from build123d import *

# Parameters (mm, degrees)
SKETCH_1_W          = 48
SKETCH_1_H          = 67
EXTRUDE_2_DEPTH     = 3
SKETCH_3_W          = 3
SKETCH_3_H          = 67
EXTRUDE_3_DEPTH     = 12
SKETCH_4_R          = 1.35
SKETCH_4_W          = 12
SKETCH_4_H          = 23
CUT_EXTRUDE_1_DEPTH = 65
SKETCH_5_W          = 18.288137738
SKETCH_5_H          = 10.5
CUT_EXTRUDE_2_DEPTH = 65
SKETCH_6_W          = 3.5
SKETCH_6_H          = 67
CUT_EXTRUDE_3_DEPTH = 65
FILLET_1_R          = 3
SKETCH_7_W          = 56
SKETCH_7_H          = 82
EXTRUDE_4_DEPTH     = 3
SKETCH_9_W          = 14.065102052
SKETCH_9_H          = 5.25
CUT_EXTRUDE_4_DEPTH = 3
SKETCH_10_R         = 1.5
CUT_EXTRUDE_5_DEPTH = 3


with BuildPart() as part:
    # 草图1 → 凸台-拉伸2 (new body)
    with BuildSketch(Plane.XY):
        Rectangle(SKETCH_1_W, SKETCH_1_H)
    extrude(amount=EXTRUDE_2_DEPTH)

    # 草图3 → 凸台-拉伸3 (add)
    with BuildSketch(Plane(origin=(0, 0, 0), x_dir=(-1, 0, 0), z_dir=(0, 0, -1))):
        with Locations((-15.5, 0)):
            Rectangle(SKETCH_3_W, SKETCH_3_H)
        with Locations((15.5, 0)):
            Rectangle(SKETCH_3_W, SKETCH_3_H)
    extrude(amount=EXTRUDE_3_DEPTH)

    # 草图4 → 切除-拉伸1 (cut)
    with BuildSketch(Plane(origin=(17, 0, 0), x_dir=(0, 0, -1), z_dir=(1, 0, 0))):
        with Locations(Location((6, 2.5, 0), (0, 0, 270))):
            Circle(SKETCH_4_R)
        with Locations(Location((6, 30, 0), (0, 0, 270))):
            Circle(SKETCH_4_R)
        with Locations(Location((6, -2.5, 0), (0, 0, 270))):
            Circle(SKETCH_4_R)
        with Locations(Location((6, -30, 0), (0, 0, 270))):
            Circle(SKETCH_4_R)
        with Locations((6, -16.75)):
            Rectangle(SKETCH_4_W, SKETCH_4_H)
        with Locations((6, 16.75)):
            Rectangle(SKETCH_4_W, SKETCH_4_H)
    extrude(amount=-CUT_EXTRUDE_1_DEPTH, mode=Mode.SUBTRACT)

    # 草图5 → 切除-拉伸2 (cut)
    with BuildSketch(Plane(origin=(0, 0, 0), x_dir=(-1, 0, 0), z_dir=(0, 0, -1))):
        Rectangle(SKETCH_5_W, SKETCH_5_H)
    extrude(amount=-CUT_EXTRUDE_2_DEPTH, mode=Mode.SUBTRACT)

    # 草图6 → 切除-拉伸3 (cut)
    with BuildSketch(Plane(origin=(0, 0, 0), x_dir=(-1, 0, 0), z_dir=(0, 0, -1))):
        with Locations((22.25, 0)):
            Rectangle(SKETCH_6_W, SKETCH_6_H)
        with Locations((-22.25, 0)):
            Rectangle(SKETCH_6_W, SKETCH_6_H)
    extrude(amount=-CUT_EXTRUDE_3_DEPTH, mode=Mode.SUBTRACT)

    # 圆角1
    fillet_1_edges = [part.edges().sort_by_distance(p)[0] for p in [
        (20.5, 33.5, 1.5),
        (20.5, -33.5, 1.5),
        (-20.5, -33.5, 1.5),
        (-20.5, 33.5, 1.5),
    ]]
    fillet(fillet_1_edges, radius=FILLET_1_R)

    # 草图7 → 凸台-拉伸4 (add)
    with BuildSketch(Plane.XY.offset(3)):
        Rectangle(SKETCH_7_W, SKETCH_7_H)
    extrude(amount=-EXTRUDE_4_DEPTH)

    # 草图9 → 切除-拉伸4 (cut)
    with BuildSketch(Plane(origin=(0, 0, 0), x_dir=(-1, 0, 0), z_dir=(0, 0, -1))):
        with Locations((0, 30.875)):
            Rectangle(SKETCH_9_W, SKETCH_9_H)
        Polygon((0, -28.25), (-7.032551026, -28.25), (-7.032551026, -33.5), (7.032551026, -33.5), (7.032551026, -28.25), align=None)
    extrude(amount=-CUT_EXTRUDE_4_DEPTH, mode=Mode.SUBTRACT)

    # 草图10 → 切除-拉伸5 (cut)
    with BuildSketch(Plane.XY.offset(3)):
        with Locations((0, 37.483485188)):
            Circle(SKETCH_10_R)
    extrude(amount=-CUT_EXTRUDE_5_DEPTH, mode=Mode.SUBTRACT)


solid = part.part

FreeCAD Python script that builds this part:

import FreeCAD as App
import Part
import Sketcher
from FreeCAD import Vector


def edges_at(feature, points):
    """Names of the edges that pass closest to the given points."""
    edges = feature.Shape.Edges
    near = lambda p: min(range(len(edges)), key=lambda i: edges[i].distToShape(Part.Vertex(*p))[0])
    return sorted({f"Edge{near(p) + 1}" for p in points})


def add_polygon(sketch, points):
    """Adds a closed chain of lines whose ends are joined by coincident constraints."""
    first, n = sketch.GeometryCount, len(points)
    for a, b in zip(points, points[1:] + points[:1]):
        sketch.addGeometry(Part.LineSegment(App.Vector(*a, 0), App.Vector(*b, 0)), False)
    for i in range(n):
        sketch.addConstraint(Sketcher.Constraint("Coincident", first + i, 2, first + (i + 1) % n, 1))

doc = App.newDocument("Part")
body = doc.addObject("PartDesign::Body", "Body")

sketch1 = body.newObject("Sketcher::SketchObject", "Sketch")
sketch1.AttachmentSupport = (doc.getObject("XY_Plane"), [""])
sketch1.MapMode = "FlatFace"
add_polygon(sketch1, [(-24, 34), (-24, -34), (24, -34), (24, 34)])
sketch1.addConstraint(Sketcher.Constraint("Vertical", 0))
sketch1.addConstraint(Sketcher.Constraint("Horizontal", 1))
sketch1.addConstraint(Sketcher.Constraint("Vertical", 2))
sketch1.addConstraint(Sketcher.Constraint("Horizontal", 3))
sketch1.addConstraint(Sketcher.Constraint("Symmetric", 0, 2, 2, 2, -1, 1))
sketch1.addConstraint(Sketcher.Constraint("DistanceX", 1, 1, 1, 2, 48.0))
sketch1.addConstraint(Sketcher.Constraint("DistanceY", 0, 2, 0, 1, 67.0))
pad1 = body.newObject("PartDesign::Pad", "Pad")
pad1.Profile = sketch1
pad1.Length = 3

sketch2 = body.newObject("Sketcher::SketchObject", "Sketch001")
sketch2.AttachmentSupport = (doc.getObject("XY_Plane"), [""])
sketch2.MapMode = "FlatFace"
add_polygon(sketch2, [(17, 33.5), (17, -33.5), (14, -33.5), (14, 33.5)])
add_polygon(sketch2, [(-14, 33.5), (-14, -33.5), (-17, -33.5), (-17, 33.5)])
sketch2.addConstraint(Sketcher.Constraint("Vertical", 0))
sketch2.addConstraint(Sketcher.Constraint("Horizontal", 1))
sketch2.addConstraint(Sketcher.Constraint("Vertical", 2))
sketch2.addConstraint(Sketcher.Constraint("Horizontal", 3))
sketch2.addConstraint(Sketcher.Constraint("Vertical", 4))
sketch2.addConstraint(Sketcher.Constraint("Horizontal", 5))
sketch2.addConstraint(Sketcher.Constraint("Vertical", 6))
sketch2.addConstraint(Sketcher.Constraint("Horizontal", 7))
sketch2.addConstraint(Sketcher.Constraint("Symmetric", 2, 2, 4, 2, -1, 1))
sketch2.addConstraint(Sketcher.Constraint("Symmetric", 0, 2, 6, 2, -1, 1))
sketch2.addConstraint(Sketcher.Constraint("Horizontal", 1, 2, 4, 2))
sketch2.addConstraint(Sketcher.Constraint("DistanceX", 1, 2, 1, 1, 3.0))
sketch2.addConstraint(Sketcher.Constraint("DistanceY", 0, 2, 0, 1, 67.0))
sketch2.addConstraint(Sketcher.Constraint("DistanceX", -1, 1, 0, 2, 17.0))
pad2 = body.newObject("PartDesign::Pad", "Pad001")
pad2.Profile = sketch2
pad2.Length = 12
pad2.Reversed = True

sketch3 = body.newObject("Sketcher::SketchObject", "Sketch002")
sketch3.AttachmentSupport = (doc.getObject("YZ_Plane"), [""])
sketch3.MapMode = "FlatFace"
sketch3.AttachmentOffset = App.Placement(Vector(0, 0, 17), App.Rotation())
sketch3.addGeometry(Part.Circle(Vector(2.5, -6, 0), Vector(0, 0, 1), 1.4), False)
sketch3.addGeometry(Part.Circle(Vector(30, -6, 0), Vector(0, 0, 1), 1.4), False)
sketch3.addGeometry(Part.Circle(Vector(-2.5, -6, 0), Vector(0, 0, 1), 1.4), False)
sketch3.addGeometry(Part.Circle(Vector(-30, -6, 0), Vector(0, 0, 1), 1.4), False)
add_polygon(sketch3, [(-5.2, 0), (-28.2, 0), (-28.2, -12), (-5.2, -12)])
add_polygon(sketch3, [(28.2, 0), (5.2, 0), (5.2, -12), (28.2, -12)])
sketch3.addConstraint(Sketcher.Constraint("Horizontal", 4))
sketch3.addConstraint(Sketcher.Constraint("Vertical", 5))
sketch3.addConstraint(Sketcher.Constraint("Horizontal", 6))
sketch3.addConstraint(Sketcher.Constraint("Vertical", 7))
sketch3.addConstraint(Sketcher.Constraint("Horizontal", 8))
sketch3.addConstraint(Sketcher.Constraint("Vertical", 9))
sketch3.addConstraint(Sketcher.Constraint("Horizontal", 10))
sketch3.addConstraint(Sketcher.Constraint("Vertical", 11))
sketch3.addConstraint(Sketcher.Constraint("Equal", 0, 1))
sketch3.addConstraint(Sketcher.Constraint("Equal", 1, 2))
sketch3.addConstraint(Sketcher.Constraint("Equal", 2, 3))
sketch3.addConstraint(Sketcher.Constraint("Symmetric", 7, 2, 8, 2, -1, 1))
sketch3.addConstraint(Sketcher.Constraint("Symmetric", 0, 3, 2, 3, -2))
sketch3.addConstraint(Sketcher.Constraint("Symmetric", 1, 3, 3, 3, -2))
sketch3.addConstraint(Sketcher.Constraint("Symmetric", 5, 2, 10, 2, -2))
sketch3.addConstraint(Sketcher.Constraint("PointOnObject", 4, 2, -1))
sketch3.addConstraint(Sketcher.Constraint("Horizontal", 0, 3, 1, 3))
sketch3.addConstraint(Sketcher.Constraint("Diameter", 0, 2.7))
sketch3.addConstraint(Sketcher.Constraint("DistanceX", 4, 2, 4, 1, 23.0))
sketch3.addConstraint(Sketcher.Constraint("DistanceY", 5, 2, 5, 1, 12.0))
sketch3.addConstraint(Sketcher.Constraint("DistanceY", 0, 3, -1, 1, 6.0))
sketch3.addConstraint(Sketcher.Constraint("DistanceX", -1, 1, 1, 3, 30.0))
sketch3.addConstraint(Sketcher.Constraint("DistanceX", 2, 3, 0, 3, 5.0))
sketch3.addConstraint(Sketcher.Constraint("DistanceX", 7, 2, 8, 2, 10.5))
pocket1 = body.newObject("PartDesign::Pocket", "Pocket")
pocket1.Profile = sketch3
pocket1.Length = 65

sketch4 = body.newObject("Sketcher::SketchObject", "Sketch003")
sketch4.AttachmentSupport = (doc.getObject("XY_Plane"), [""])
sketch4.MapMode = "FlatFace"
add_polygon(sketch4, [(9, 5), (9, -5), (-9, -5), (-9, 5)])
sketch4.addConstraint(Sketcher.Constraint("Vertical", 0))
sketch4.addConstraint(Sketcher.Constraint("Horizontal", 1))
sketch4.addConstraint(Sketcher.Constraint("Vertical", 2))
sketch4.addConstraint(Sketcher.Constraint("Horizontal", 3))
sketch4.addConstraint(Sketcher.Constraint("Symmetric", 0, 2, 2, 2, -1, 1))
sketch4.addConstraint(Sketcher.Constraint("DistanceY", 0, 2, 0, 1, 10.5))
sketch4.addConstraint(Sketcher.Constraint("DistanceX", 1, 2, 1, 1, 18.288138))
pocket2 = body.newObject("PartDesign::Pocket", "Pocket001")
pocket2.Profile = sketch4
pocket2.Length = 65
pocket2.Reversed = True

sketch5 = body.newObject("Sketcher::SketchObject", "Sketch004")
sketch5.AttachmentSupport = (doc.getObject("XY_Plane"), [""])
sketch5.MapMode = "FlatFace"
add_polygon(sketch5, [(-20.5, 33.5), (-20.5, -33.5), (-24, -33.5), (-24, 33.5)])
add_polygon(sketch5, [(24, 33.5), (24, -33.5), (20.5, -33.5), (20.5, 33.5)])
sketch5.addConstraint(Sketcher.Constraint("Vertical", 0))
sketch5.addConstraint(Sketcher.Constraint("Horizontal", 1))
sketch5.addConstraint(Sketcher.Constraint("Vertical", 2))
sketch5.addConstraint(Sketcher.Constraint("Horizontal", 3))
sketch5.addConstraint(Sketcher.Constraint("Vertical", 4))
sketch5.addConstraint(Sketcher.Constraint("Horizontal", 5))
sketch5.addConstraint(Sketcher.Constraint("Vertical", 6))
sketch5.addConstraint(Sketcher.Constraint("Horizontal", 7))
sketch5.addConstraint(Sketcher.Constraint("Symmetric", 2, 2, 4, 2, -1, 1))
sketch5.addConstraint(Sketcher.Constraint("Symmetric", 0, 2, 6, 2, -1, 1))
sketch5.addConstraint(Sketcher.Constraint("Horizontal", 1, 2, 4, 2))
sketch5.addConstraint(Sketcher.Constraint("DistanceY", 0, 2, 0, 1, 67.0))
sketch5.addConstraint(Sketcher.Constraint("DistanceX", 1, 2, 1, 1, 3.5))
sketch5.addConstraint(Sketcher.Constraint("DistanceX", 1, 2, -1, 1, 24.0))
pocket3 = body.newObject("PartDesign::Pocket", "Pocket002")
pocket3.Profile = sketch5
pocket3.Length = 65
pocket3.Reversed = True
doc.recompute()

fillet = body.newObject("PartDesign::Fillet", "Fillet")
fillet.Base = (pocket3, edges_at(pocket3, [
    (20.5, 33.5, 1.5),
    (20.5, -33.5, 1.5),
    (-20.5, -33.5, 1.5),
    (-20.5, 33.5, 1.5),
]))
fillet.Radius = 3

sketch6 = body.newObject("Sketcher::SketchObject", "Sketch005")
sketch6.AttachmentSupport = (doc.getObject("XY_Plane"), [""])
sketch6.MapMode = "FlatFace"
sketch6.AttachmentOffset = App.Placement(Vector(0, 0, 3), App.Rotation())
add_polygon(sketch6, [(-28, 41), (-28, -41), (28, -41), (28, 41)])
sketch6.addConstraint(Sketcher.Constraint("Vertical", 0))
sketch6.addConstraint(Sketcher.Constraint("Horizontal", 1))
sketch6.addConstraint(Sketcher.Constraint("Vertical", 2))
sketch6.addConstraint(Sketcher.Constraint("Horizontal", 3))
sketch6.addConstraint(Sketcher.Constraint("Symmetric", 0, 2, 2, 2, -1, 1))
sketch6.addConstraint(Sketcher.Constraint("DistanceX", 1, 1, 1, 2, 56.0))
sketch6.addConstraint(Sketcher.Constraint("DistanceY", 0, 2, 0, 1, 82.0))
pad3 = body.newObject("PartDesign::Pad", "Pad002")
pad3.Profile = sketch6
pad3.Length = 3
pad3.Reversed = True

sketch7 = body.newObject("Sketcher::SketchObject", "Sketch006")
sketch7.AttachmentSupport = (doc.getObject("XY_Plane"), [""])
sketch7.MapMode = "FlatFace"
add_polygon(sketch7, [(7, 34), (7, 28), (-7, 28), (-7, 34)])
add_polygon(sketch7, [(7, -28), (7, -34), (-7, -34), (-7, -28)])
sketch7.addConstraint(Sketcher.Constraint("Vertical", 0))
sketch7.addConstraint(Sketcher.Constraint("Horizontal", 1))
sketch7.addConstraint(Sketcher.Constraint("Vertical", 2))
sketch7.addConstraint(Sketcher.Constraint("Horizontal", 3))
sketch7.addConstraint(Sketcher.Constraint("Vertical", 4))
sketch7.addConstraint(Sketcher.Constraint("Horizontal", 5))
sketch7.addConstraint(Sketcher.Constraint("Vertical", 6))
sketch7.addConstraint(Sketcher.Constraint("Horizontal", 7))
sketch7.addConstraint(Sketcher.Constraint("Symmetric", 2, 2, 4, 2, -1, 1))
sketch7.addConstraint(Sketcher.Constraint("Symmetric", 0, 2, 6, 2, -1, 1))
sketch7.addConstraint(Sketcher.Constraint("Vertical", 3, 2, 4, 2))
sketch7.addConstraint(Sketcher.Constraint("DistanceY", 4, 2, 3, 2, 67.0))
sketch7.addConstraint(Sketcher.Constraint("DistanceY", 0, 2, 0, 1, 5.25))
sketch7.addConstraint(Sketcher.Constraint("DistanceX", 1, 2, 1, 1, 14.065102))
pocket4 = body.newObject("PartDesign::Pocket", "Pocket003")
pocket4.Profile = sketch7
pocket4.Length = 3
pocket4.Reversed = True

sketch8 = body.newObject("Sketcher::SketchObject", "Sketch007")
sketch8.AttachmentSupport = (doc.getObject("XY_Plane"), [""])
sketch8.MapMode = "FlatFace"
sketch8.AttachmentOffset = App.Placement(Vector(0, 0, 3), App.Rotation())
sketch8.addGeometry(Part.Circle(Vector(0, 37.5, 0), Vector(0, 0, 1), 1.5), False)
sketch8.addConstraint(Sketcher.Constraint("PointOnObject", 0, 3, -2))
sketch8.addConstraint(Sketcher.Constraint("Diameter", 0, 3.0))
sketch8.addConstraint(Sketcher.Constraint("DistanceY", -1, 1, 0, 3, 37.483485))
pocket5 = body.newObject("PartDesign::Pocket", "Pocket004")
pocket5.Profile = sketch8
pocket5.Length = 3

doc.recompute()
